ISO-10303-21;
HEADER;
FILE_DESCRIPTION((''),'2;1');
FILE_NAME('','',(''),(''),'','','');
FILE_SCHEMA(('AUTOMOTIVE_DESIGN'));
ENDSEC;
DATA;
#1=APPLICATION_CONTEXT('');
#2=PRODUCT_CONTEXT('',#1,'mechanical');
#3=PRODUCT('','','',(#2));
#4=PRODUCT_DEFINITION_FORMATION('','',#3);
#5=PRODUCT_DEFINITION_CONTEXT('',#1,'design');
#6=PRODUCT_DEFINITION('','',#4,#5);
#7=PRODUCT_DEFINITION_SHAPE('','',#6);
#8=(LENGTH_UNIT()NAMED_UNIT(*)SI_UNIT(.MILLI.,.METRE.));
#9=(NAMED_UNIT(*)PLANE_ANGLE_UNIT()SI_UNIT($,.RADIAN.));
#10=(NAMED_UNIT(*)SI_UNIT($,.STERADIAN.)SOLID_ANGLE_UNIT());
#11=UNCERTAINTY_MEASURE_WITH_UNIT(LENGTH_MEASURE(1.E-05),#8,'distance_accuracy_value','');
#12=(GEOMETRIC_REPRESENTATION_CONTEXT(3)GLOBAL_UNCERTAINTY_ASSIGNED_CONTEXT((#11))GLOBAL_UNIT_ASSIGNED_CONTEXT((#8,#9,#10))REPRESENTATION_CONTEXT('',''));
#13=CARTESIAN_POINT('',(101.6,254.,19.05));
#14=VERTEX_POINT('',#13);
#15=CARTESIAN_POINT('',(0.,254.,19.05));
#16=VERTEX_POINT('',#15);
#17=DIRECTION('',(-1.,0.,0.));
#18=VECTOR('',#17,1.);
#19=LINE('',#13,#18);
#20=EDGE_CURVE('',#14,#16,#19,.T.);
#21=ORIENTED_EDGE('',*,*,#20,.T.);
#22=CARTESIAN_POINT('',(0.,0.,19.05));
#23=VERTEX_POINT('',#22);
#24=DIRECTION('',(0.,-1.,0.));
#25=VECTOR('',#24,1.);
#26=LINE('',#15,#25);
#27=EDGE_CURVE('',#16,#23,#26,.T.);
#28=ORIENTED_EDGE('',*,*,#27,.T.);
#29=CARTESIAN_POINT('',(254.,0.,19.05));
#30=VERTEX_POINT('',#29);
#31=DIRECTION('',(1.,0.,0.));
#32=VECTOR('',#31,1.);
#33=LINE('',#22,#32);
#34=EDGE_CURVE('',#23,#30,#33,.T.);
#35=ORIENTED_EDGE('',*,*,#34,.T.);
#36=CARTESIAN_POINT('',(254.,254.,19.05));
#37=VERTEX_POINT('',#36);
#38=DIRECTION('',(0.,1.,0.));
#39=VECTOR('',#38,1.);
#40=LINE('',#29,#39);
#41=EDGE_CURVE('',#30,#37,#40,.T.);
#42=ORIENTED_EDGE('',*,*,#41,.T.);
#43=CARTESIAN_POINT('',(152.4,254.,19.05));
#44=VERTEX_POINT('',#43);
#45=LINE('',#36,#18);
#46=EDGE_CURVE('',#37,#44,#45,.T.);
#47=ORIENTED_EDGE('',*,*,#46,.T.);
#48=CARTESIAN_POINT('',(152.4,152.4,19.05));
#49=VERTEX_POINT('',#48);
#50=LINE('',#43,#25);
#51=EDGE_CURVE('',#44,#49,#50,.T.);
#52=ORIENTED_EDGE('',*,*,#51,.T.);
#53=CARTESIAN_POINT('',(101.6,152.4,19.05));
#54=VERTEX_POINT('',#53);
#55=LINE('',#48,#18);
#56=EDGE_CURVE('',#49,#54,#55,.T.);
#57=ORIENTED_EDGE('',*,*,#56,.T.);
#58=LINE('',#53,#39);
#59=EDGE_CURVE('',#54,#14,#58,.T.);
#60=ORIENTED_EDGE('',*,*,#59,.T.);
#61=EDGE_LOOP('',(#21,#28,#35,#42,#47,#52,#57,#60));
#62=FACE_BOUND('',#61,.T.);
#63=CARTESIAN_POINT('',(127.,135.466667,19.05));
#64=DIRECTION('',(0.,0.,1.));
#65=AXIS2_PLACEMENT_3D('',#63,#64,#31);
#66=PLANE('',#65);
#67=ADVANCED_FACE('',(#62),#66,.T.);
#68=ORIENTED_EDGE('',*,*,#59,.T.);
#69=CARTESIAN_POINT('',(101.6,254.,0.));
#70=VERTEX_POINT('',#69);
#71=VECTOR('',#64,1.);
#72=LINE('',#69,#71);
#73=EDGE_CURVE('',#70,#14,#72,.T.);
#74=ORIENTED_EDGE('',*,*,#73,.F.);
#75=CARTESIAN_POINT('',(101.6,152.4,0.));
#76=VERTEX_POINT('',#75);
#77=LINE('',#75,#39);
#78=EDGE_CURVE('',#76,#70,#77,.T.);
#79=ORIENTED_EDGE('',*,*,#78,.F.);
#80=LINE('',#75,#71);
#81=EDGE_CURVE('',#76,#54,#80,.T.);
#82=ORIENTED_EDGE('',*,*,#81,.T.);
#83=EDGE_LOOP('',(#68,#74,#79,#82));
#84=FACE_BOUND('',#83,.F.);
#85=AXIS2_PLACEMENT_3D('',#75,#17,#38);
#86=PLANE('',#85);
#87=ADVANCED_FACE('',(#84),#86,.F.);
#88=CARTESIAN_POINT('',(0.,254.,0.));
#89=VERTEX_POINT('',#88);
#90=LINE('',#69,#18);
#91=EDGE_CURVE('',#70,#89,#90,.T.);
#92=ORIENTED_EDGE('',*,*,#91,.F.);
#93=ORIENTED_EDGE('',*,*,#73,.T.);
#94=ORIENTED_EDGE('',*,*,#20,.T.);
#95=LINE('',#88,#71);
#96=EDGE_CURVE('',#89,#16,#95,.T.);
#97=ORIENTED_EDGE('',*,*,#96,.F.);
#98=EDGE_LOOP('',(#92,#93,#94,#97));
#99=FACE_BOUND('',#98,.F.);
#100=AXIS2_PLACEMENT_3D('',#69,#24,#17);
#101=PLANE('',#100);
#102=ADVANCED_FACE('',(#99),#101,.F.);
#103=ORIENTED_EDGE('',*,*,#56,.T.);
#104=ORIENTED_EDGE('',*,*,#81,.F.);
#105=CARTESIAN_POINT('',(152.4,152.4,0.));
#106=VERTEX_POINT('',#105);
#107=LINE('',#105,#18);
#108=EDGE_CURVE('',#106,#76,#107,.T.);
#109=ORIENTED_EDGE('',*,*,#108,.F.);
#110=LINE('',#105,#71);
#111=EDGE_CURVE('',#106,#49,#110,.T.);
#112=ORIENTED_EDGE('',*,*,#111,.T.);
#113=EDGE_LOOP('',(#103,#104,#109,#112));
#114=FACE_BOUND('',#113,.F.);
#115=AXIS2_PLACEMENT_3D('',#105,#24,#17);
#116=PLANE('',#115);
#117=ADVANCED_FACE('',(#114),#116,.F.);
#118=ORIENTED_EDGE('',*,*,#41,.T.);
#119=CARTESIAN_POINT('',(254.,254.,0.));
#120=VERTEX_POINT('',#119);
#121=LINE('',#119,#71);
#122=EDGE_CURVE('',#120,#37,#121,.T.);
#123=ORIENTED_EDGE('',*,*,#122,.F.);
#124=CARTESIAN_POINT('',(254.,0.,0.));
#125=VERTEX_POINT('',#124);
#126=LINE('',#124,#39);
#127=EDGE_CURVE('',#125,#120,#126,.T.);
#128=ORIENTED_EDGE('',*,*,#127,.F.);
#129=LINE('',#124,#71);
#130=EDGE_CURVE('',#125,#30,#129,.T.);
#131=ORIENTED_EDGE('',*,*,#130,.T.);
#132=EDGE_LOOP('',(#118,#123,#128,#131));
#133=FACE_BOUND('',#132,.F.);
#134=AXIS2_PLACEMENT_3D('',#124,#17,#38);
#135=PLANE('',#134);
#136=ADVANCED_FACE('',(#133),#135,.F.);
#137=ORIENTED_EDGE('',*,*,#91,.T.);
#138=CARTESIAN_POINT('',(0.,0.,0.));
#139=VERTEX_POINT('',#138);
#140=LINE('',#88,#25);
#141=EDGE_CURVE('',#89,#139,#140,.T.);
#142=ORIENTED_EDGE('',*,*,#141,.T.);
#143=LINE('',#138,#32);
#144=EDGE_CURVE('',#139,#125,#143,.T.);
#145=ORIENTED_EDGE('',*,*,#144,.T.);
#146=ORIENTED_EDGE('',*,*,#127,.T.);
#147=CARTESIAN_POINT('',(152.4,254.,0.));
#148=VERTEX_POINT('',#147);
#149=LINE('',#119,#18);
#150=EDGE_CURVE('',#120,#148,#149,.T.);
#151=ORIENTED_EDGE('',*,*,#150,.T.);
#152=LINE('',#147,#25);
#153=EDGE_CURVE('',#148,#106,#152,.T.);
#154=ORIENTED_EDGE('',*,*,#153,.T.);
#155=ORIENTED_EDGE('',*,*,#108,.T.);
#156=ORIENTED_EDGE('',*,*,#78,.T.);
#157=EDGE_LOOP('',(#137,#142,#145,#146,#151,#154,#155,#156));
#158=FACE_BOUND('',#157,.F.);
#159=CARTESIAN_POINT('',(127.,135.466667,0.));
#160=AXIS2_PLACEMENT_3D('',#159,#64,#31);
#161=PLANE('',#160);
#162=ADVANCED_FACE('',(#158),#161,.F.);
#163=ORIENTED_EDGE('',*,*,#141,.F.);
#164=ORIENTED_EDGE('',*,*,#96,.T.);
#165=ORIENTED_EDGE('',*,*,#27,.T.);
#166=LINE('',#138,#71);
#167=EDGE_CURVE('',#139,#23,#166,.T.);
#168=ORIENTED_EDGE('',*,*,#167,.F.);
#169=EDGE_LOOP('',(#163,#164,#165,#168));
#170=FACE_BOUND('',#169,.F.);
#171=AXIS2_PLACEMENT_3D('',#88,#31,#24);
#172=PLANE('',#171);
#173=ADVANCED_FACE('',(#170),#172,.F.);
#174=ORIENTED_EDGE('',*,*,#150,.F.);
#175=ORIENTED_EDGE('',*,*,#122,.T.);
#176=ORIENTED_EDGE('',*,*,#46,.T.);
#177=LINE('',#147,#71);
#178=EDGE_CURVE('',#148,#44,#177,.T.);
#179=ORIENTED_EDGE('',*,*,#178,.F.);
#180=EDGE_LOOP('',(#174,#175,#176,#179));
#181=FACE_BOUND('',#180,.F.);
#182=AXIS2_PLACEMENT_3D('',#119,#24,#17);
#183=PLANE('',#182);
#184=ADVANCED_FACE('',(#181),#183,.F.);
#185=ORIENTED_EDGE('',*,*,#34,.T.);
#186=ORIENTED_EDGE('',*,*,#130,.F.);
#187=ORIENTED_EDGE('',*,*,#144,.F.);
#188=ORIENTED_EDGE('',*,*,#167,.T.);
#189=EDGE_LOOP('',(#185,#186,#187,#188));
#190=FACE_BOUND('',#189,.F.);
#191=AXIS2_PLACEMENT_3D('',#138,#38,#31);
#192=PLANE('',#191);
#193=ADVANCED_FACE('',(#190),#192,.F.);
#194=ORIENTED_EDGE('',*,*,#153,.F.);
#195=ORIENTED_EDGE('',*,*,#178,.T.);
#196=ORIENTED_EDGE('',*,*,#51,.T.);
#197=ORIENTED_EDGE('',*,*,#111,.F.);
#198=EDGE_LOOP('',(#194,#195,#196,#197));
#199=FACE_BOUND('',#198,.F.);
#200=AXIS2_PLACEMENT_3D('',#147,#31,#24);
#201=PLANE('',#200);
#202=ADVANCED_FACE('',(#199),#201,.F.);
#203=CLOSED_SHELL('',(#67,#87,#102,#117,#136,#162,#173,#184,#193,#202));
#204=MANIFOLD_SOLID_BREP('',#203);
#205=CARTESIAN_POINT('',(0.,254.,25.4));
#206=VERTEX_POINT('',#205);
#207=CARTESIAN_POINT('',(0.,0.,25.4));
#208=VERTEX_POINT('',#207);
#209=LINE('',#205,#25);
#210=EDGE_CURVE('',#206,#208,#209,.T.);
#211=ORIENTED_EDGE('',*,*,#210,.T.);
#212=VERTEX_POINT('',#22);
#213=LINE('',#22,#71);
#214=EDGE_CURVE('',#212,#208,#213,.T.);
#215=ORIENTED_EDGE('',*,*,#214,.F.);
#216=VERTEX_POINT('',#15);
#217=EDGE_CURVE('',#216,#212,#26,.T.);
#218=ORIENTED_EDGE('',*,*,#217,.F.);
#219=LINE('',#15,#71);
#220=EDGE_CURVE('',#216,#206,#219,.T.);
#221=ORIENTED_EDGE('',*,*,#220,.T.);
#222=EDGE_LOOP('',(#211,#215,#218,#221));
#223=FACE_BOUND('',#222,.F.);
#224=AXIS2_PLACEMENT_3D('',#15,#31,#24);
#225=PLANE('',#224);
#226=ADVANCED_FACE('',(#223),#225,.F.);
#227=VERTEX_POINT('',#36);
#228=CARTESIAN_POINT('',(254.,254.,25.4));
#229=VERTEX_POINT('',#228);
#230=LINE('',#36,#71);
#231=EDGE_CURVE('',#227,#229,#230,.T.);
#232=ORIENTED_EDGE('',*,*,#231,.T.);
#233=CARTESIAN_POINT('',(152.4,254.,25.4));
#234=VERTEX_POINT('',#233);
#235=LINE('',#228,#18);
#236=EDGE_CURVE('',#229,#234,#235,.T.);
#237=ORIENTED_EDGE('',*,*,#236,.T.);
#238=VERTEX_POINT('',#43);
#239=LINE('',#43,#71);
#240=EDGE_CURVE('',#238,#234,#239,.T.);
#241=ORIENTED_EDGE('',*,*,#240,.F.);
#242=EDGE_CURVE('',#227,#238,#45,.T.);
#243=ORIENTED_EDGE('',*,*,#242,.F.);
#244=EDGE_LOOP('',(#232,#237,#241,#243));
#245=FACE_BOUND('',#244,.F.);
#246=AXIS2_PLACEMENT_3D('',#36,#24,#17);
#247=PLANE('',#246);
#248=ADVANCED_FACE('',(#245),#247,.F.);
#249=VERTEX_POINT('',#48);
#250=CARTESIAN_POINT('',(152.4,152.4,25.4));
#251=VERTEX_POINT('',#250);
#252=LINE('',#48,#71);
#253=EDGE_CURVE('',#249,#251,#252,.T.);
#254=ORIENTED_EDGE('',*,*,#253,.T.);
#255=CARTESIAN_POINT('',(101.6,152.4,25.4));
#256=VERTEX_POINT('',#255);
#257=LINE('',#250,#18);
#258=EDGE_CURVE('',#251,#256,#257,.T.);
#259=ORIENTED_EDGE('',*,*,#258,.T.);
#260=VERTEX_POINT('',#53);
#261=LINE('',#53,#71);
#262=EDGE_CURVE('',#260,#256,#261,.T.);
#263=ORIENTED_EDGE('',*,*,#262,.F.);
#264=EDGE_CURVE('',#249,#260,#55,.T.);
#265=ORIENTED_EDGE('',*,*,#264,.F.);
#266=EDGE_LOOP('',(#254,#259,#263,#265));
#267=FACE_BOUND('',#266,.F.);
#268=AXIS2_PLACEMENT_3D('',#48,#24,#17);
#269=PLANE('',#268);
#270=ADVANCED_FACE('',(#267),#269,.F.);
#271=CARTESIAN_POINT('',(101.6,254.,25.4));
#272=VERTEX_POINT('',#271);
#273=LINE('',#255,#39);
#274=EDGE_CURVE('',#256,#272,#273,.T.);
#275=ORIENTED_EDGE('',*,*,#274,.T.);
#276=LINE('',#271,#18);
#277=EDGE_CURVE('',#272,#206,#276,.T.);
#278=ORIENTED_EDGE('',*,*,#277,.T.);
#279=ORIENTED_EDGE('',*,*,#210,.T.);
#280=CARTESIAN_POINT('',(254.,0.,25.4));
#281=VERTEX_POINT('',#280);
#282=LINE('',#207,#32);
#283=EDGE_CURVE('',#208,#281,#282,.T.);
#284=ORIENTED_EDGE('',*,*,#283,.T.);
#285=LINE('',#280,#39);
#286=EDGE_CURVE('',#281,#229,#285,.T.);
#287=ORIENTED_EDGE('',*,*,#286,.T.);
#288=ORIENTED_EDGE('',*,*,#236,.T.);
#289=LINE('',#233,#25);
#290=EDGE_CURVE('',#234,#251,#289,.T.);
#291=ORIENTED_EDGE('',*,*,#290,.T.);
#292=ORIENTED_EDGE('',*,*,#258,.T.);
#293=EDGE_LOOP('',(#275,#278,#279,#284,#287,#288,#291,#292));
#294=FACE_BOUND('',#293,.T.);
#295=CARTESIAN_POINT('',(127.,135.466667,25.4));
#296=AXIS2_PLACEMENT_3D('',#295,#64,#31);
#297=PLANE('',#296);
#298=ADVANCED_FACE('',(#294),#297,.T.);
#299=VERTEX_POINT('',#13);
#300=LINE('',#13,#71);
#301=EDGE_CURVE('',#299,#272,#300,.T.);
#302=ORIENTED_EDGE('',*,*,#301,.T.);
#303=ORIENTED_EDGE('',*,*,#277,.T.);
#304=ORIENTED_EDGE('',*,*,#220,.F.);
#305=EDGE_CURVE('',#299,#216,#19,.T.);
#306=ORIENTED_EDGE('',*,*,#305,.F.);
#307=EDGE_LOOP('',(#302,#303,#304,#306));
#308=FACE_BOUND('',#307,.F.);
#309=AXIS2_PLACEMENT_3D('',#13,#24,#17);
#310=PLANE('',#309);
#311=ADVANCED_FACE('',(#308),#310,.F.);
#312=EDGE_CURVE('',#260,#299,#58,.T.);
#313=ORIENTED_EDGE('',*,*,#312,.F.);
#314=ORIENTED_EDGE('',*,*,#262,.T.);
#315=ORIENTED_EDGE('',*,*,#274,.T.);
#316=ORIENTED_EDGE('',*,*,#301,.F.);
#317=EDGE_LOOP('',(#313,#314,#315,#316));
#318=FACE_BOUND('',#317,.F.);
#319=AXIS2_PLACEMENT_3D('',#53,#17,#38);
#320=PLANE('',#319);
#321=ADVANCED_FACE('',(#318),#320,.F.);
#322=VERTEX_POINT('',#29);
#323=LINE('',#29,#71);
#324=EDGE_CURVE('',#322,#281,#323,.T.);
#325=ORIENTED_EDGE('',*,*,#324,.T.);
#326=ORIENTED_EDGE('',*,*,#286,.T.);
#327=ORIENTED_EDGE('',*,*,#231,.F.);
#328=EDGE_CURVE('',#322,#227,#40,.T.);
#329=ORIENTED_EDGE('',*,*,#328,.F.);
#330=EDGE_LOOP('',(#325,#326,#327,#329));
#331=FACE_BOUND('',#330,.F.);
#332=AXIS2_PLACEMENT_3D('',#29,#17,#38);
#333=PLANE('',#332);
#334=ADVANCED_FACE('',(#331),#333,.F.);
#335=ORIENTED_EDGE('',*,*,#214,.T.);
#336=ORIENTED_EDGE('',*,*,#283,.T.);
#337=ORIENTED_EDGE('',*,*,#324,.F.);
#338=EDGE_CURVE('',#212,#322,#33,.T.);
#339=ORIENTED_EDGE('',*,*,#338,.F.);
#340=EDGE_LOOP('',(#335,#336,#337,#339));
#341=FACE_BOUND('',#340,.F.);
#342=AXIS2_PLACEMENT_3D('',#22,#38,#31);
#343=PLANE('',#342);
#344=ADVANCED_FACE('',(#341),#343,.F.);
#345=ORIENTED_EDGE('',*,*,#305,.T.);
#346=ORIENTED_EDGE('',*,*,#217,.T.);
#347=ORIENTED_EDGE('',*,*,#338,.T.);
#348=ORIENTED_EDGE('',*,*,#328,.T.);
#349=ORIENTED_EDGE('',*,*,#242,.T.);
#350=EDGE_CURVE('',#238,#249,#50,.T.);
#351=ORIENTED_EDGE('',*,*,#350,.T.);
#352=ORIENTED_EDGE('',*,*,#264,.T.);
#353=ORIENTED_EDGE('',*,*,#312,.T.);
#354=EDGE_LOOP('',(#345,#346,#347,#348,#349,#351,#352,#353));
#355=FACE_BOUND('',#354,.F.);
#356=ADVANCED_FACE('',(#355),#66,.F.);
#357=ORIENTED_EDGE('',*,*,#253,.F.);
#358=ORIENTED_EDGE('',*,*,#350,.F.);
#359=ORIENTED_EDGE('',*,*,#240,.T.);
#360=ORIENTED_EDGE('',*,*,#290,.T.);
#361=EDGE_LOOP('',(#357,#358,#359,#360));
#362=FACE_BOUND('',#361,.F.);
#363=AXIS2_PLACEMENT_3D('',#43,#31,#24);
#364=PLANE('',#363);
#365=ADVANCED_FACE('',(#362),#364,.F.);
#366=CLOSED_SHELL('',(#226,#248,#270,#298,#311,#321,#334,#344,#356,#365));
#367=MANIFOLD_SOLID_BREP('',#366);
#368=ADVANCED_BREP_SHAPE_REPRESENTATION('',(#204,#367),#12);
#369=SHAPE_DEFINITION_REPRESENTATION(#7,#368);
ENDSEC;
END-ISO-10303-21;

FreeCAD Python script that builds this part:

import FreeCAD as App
import Part
import Sketcher
from FreeCAD import Vector
Q = App.Units.Quantity

doc = App.newDocument("Part")
body = doc.addObject("PartDesign::Body", "Body")

# Sketch on XY plane
sketch1 = body.newObject("Sketcher::SketchObject", "Sketch")
sketch1.AttachmentSupport = (doc.getObject("XY_Plane"), [""])
sketch1.MapMode = "FlatFace"
sketch1.addGeometry(Part.LineSegment(Vector(0, 254, 0), Vector(0, 0, 0)), False)
sketch1.addGeometry(Part.LineSegment(Vector(0, 0, 0), Vector(254, 0, 0)), False)
sketch1.addGeometry(Part.LineSegment(Vector(254, 0, 0), Vector(254, 254, 0)), False)
sketch1.addGeometry(Part.LineSegment(Vector(254, 254, 0), Vector(152.4, 254, 0)), False)
sketch1.addGeometry(Part.LineSegment(Vector(152.4, 254, 0), Vector(152.4, 152.4, 0)), False)
sketch1.addGeometry(Part.LineSegment(Vector(152.4, 152.4, 0), Vector(101.6, 152.4, 0)), False)
sketch1.addGeometry(Part.LineSegment(Vector(101.6, 152.4, 0), Vector(101.6, 254, 0)), False)
sketch1.addGeometry(Part.LineSegment(Vector(101.6, 254, 0), Vector(0, 254, 0)), False)
sketch1.addConstraint(Sketcher.Constraint("Coincident", 0, 2, 1, 1))
sketch1.addConstraint(Sketcher.Constraint("Coincident", 1, 2, 2, 1))
sketch1.addConstraint(Sketcher.Constraint("Coincident", 2, 2, 3, 1))
sketch1.addConstraint(Sketcher.Constraint("Coincident", 3, 2, 4, 1))
sketch1.addConstraint(Sketcher.Constraint("Coincident", 4, 2, 5, 1))
sketch1.addConstraint(Sketcher.Constraint("Coincident", 5, 2, 6, 1))
sketch1.addConstraint(Sketcher.Constraint("Coincident", 6, 2, 7, 1))
sketch1.addConstraint(Sketcher.Constraint("Coincident", 7, 2, 0, 1))
sketch1.addConstraint(Sketcher.Constraint("Vertical", 0))
sketch1.addConstraint(Sketcher.Constraint("Horizontal", 1))
sketch1.addConstraint(Sketcher.Constraint("Vertical", 2))
sketch1.addConstraint(Sketcher.Constraint("Horizontal", 3))
sketch1.addConstraint(Sketcher.Constraint("Vertical", 4))
sketch1.addConstraint(Sketcher.Constraint("Horizontal", 5))
sketch1.addConstraint(Sketcher.Constraint("Vertical", 6))
sketch1.addConstraint(Sketcher.Constraint("Horizontal", 7))
sketch1.addConstraint(Sketcher.Constraint("Coincident", 0, 2, -1, 1))
sketch1.addConstraint(Sketcher.Constraint("Horizontal", 3, 2, 6, 2))
sketch1.addConstraint(Sketcher.Constraint("Equal", 3, 7))
sketch1.addConstraint(Sketcher.Constraint("Equal", 1, 0))
sketch1.addConstraint(Sketcher.Constraint("Equal", 7, 4))
sketch1.addConstraint(Sketcher.Constraint("DistanceX", 1, 1, 1, 2, Q("10 in")))
sketch1.addConstraint(Sketcher.Constraint("DistanceX", 3, 2, 3, 1, Q("4 in")))
pad1 = body.newObject("PartDesign::Pad", "Pad")
pad1.Profile = sketch1
pad1.Length = Q("0.75 in")
body2 = doc.addObject("PartDesign::Body", "Body001")

# Sketch on XY plane
sketch2 = body2.newObject("Sketcher::SketchObject", "Sketch001")
sketch2.AttachmentSupport = (doc.getObject("XY_Plane001"), [""])
sketch2.MapMode = "FlatFace"
sketch2.AttachmentOffset = App.Placement(Vector(0, 0, 0.75 * 25.4), App.Rotation())
sketch2.addGeometry(Part.LineSegment(Vector(0, 254, 0), Vector(0, 0, 0)), False)
sketch2.addGeometry(Part.LineSegment(Vector(0, 0, 0), Vector(254, 0, 0)), False)
sketch2.addGeometry(Part.LineSegment(Vector(254, 0, 0), Vector(254, 254, 0)), False)
sketch2.addGeometry(Part.LineSegment(Vector(254, 254, 0), Vector(152.4, 254, 0)), False)
sketch2.addGeometry(Part.LineSegment(Vector(152.4, 254, 0), Vector(152.4, 152.4, 0)), False)
sketch2.addGeometry(Part.LineSegment(Vector(152.4, 152.4, 0), Vector(101.6, 152.4, 0)), False)
sketch2.addGeometry(Part.LineSegment(Vector(101.6, 152.4, 0), Vector(101.6, 254, 0)), False)
sketch2.addGeometry(Part.LineSegment(Vector(101.6, 254, 0), Vector(0, 254, 0)), False)
sketch2.addConstraint(Sketcher.Constraint("Coincident", 0, 2, 1, 1))
sketch2.addConstraint(Sketcher.Constraint("Coincident", 1, 2, 2, 1))
sketch2.addConstraint(Sketcher.Constraint("Coincident", 2, 2, 3, 1))
sketch2.addConstraint(Sketcher.Constraint("Coincident", 3, 2, 4, 1))
sketch2.addConstraint(Sketcher.Constraint("Coincident", 4, 2, 5, 1))
sketch2.addConstraint(Sketcher.Constraint("Coincident", 5, 2, 6, 1))
sketch2.addConstraint(Sketcher.Constraint("Coincident", 6, 2, 7, 1))
sketch2.addConstraint(Sketcher.Constraint("Coincident", 7, 2, 0, 1))
sketch2.addConstraint(Sketcher.Constraint("Vertical", 0))
sketch2.addConstraint(Sketcher.Constraint("Horizontal", 1))
sketch2.addConstraint(Sketcher.Constraint("Vertical", 2))
sketch2.addConstraint(Sketcher.Constraint("Horizontal", 3))
sketch2.addConstraint(Sketcher.Constraint("Vertical", 4))
sketch2.addConstraint(Sketcher.Constraint("Horizontal", 5))
sketch2.addConstraint(Sketcher.Constraint("Vertical", 6))
sketch2.addConstraint(Sketcher.Constraint("Horizontal", 7))
sketch2.addConstraint(Sketcher.Constraint("Coincident", 0, 2, -1, 1))
sketch2.addConstraint(Sketcher.Constraint("Horizontal", 3, 2, 6, 2))
sketch2.addConstraint(Sketcher.Constraint("Equal", 3, 7))
sketch2.addConstraint(Sketcher.Constraint("Equal", 1, 0))
sketch2.addConstraint(Sketcher.Constraint("Equal", 7, 4))
sketch2.addConstraint(Sketcher.Constraint("DistanceX", 1, 1, 1, 2, Q("10 in")))
sketch2.addConstraint(Sketcher.Constraint("DistanceX", 3, 2, 3, 1, Q("4 in")))
pad2 = body2.newObject("PartDesign::Pad", "Pad001")
pad2.Profile = sketch2
pad2.Length = Q("0.25 in")

doc.recompute()
